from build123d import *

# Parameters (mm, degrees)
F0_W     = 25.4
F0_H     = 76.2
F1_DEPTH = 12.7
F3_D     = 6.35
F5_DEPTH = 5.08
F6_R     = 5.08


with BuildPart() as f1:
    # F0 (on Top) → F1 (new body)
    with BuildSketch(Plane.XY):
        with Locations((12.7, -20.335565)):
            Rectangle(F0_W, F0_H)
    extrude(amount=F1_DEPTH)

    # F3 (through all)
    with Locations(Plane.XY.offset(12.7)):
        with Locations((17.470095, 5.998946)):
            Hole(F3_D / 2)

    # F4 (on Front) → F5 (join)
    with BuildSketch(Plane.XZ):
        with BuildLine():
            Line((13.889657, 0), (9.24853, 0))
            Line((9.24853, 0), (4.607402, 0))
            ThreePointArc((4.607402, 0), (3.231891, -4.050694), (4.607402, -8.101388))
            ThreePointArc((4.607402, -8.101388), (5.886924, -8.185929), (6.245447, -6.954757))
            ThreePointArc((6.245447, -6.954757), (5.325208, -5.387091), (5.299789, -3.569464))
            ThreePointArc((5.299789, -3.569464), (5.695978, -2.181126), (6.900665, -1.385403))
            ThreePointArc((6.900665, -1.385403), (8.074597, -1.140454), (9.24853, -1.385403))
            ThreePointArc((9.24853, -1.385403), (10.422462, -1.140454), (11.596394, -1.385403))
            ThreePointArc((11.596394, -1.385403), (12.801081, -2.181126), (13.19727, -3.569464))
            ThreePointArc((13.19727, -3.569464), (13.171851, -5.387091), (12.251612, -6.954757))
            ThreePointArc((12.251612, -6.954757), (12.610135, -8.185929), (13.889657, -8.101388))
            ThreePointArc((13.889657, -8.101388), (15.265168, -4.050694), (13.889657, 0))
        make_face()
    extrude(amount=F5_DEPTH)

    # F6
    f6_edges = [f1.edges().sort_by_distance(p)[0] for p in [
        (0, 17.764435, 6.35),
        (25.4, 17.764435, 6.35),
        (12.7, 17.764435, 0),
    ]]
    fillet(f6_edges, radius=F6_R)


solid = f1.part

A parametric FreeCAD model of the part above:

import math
import FreeCAD as App
import Part
import Sketcher
Q = App.Units.Quantity


def edges_at(feature, points):
    """Names of the edges that pass closest to the given points."""
    edges = feature.Shape.Edges
    near = lambda p: min(range(len(edges)), key=lambda i: edges[i].distToShape(Part.Vertex(*p))[0])
    return sorted({f"Edge{near(p) + 1}" for p in points})

doc = App.newDocument("Part")
body = doc.addObject("PartDesign::Body", "Body")

# Sketch on XY plane
sketch1 = body.newObject("Sketcher::SketchObject", "Sketch")
sketch1.AttachmentSupport = (doc.getObject("XY_Plane"), [""])
sketch1.MapMode = "FlatFace"
sketch1.addGeometry([
    Part.LineSegment(App.Vector(0, 18, 0), App.Vector(0, -58, 0)),
    Part.LineSegment(App.Vector(0, -58, 0), App.Vector(25, -58, 0)),
    Part.LineSegment(App.Vector(25, -58, 0), App.Vector(25, 18, 0)),
    Part.LineSegment(App.Vector(25, 18, 0), App.Vector(0, 18, 0)),
], False)
sketch1.addConstraint([
    Sketcher.Constraint("Coincident", 0, 2, 1, 1),
    Sketcher.Constraint("Coincident", 1, 2, 2, 1),
    Sketcher.Constraint("Coincident", 2, 2, 3, 1),
    Sketcher.Constraint("Coincident", 3, 2, 0, 1),
    Sketcher.Constraint("Vertical", 0),
    Sketcher.Constraint("Horizontal", 1),
    Sketcher.Constraint("Vertical", 2),
    Sketcher.Constraint("Horizontal", 3),
    Sketcher.Constraint("PointOnObject", 0, 2, -2),
    Sketcher.Constraint("DistanceX", 1, 1, 1, 2, Q("1 in")),
    Sketcher.Constraint("DistanceY", 0, 2, 0, 1, Q("3 in")),
    Sketcher.Constraint("DistanceY", 0, 2, -1, 1, Q("58.435565 mm")),
])
pad1 = body.newObject("PartDesign::Pad", "Pad")
pad1.Profile = sketch1
pad1.Length = Q("0.5 in")

# Sketch on XY plane
sketch2 = body.newObject("Sketcher::SketchObject", "Sketch001")
sketch2.AttachmentSupport = (doc.getObject("XY_Plane"), [""])
sketch2.MapMode = "FlatFace"
sketch2.AttachmentOffset = App.Placement(App.Vector(0, 0, 0.5 * 25.4), App.Rotation())
sketch2.addGeometry(Part.Circle(App.Vector(17.5, 6, 0), App.Vector(0, 0, 1), 3.2), False)
sketch2.addConstraint([
    Sketcher.Constraint("Diameter", 0, Q("0.25 in")),
    Sketcher.Constraint("DistanceX", -1, 1, 0, 3, Q("17.470095 mm")),
    Sketcher.Constraint("DistanceY", -1, 1, 0, 3, Q("5.998946 mm")),
])
doc.recompute()
hole = body.newObject("PartDesign::Hole", "Hole")
hole.Profile = sketch2
hole.ThreadType = "None"
hole.Diameter = Q("0.25 in")
hole.DepthType = "ThroughAll"

# Sketch on XZ plane
sketch3 = body.newObject("Sketcher::SketchObject", "Sketch002")
sketch3.AttachmentSupport = (doc.getObject("XZ_Plane"), [""])
sketch3.MapMode = "FlatFace"
sketch3.addGeometry([
    Part.LineSegment(App.Vector(13.9, 0, 0), App.Vector(4.6, 0, 0)),  # 0
    Part.ArcOfCircle(Part.Circle(App.Vector(9.9, -4.1, 0), App.Vector(0, 0, 1), 6.7), math.radians(142), math.radians(218)),  # 1
    Part.ArcOfCircle(Part.Circle(App.Vector(5.3, -7.3, 0), App.Vector(0, 0, 1), 1), math.radians(-133), math.radians(23)),  # 2
    Part.ArcOfCircle(Part.Circle(App.Vector(8.8, -4.4, 0), App.Vector(0, 0, 1), 3.6), math.radians(166), math.radians(225)),  # 3
    Part.ArcOfCircle(Part.Circle(App.Vector(7.4, -3.4, 0), App.Vector(0, 0, 1), 2.1), math.radians(103), math.radians(184)),  # 4
    Part.ArcOfCircle(Part.Circle(App.Vector(8.1, -4.1, 0), App.Vector(0, 0, 1), 2.9), math.radians(66), math.radians(114)),  # 5
    Part.ArcOfCircle(Part.Circle(App.Vector(10.4, -4.1, 0), App.Vector(0, 0, 1), 2.9), math.radians(66), math.radians(114)),  # 6
    Part.ArcOfCircle(Part.Circle(App.Vector(11.1, -3.4, 0), App.Vector(0, 0, 1), 2.1), math.radians(-4), math.radians(77)),  # 7
    Part.ArcOfCircle(Part.Circle(App.Vector(9.7, -4.4, 0), App.Vector(0, 0, 1), 3.6), math.radians(-45), math.radians(14)),  # 8
    Part.ArcOfCircle(Part.Circle(App.Vector(13.2, -7.3, 0), App.Vector(0, 0, 1), 1), math.radians(157), math.radians(313)),  # 9
    Part.ArcOfCircle(Part.Circle(App.Vector(8.6, -4.1, 0), App.Vector(0, 0, 1), 6.7), math.radians(-38), math.radians(38)),  # 10
], False)
sketch3.addConstraint([
    Sketcher.Constraint("Coincident", 0, 2, 1, 1),
    Sketcher.Constraint("Coincident", 1, 2, 2, 1),
    Sketcher.Constraint("Coincident", 2, 2, 3, 2),
    Sketcher.Constraint("Coincident", 3, 1, 4, 2),
    Sketcher.Constraint("Coincident", 4, 1, 5, 2),
    Sketcher.Constraint("Coincident", 5, 1, 6, 2),
    Sketcher.Constraint("Coincident", 6, 1, 7, 2),
    Sketcher.Constraint("Coincident", 7, 1, 8, 2),
    Sketcher.Constraint("Coincident", 8, 1, 9, 1),
    Sketcher.Constraint("Coincident", 9, 2, 10, 1),
    Sketcher.Constraint("Coincident", 10, 2, 0, 1),
    Sketcher.Constraint("Horizontal", 0),
    Sketcher.Constraint("Equal", 4, 7),
    Sketcher.Constraint("Equal", 3, 8),
    Sketcher.Constraint("Equal", 2, 9),
    Sketcher.Constraint("Equal", 1, 10),
    Sketcher.Constraint("PointOnObject", 0, 2, -1),
    Sketcher.Constraint("Horizontal", 4, 3, 7, 3),
    Sketcher.Constraint("Horizontal", 3, 3, 8, 3),
    Sketcher.Constraint("Horizontal", 2, 3, 9, 3),
    Sketcher.Constraint("Horizontal", 1, 3, 10, 3),
    Sketcher.Constraint("Horizontal", 4, 1, 5, 1),
    Sketcher.Constraint("Horizontal", 5, 1, 6, 1),
    Sketcher.Constraint("Horizontal", 3, 1, 7, 1),
    Sketcher.Constraint("Horizontal", 2, 2, 8, 1),
    Sketcher.Constraint("Horizontal", 1, 2, 9, 2),
    Sketcher.Constraint("Vertical", 0, 2, 1, 2),
    Sketcher.Constraint("Vertical", 2, 3, 3, 1),
    Sketcher.Constraint("Radius", 4, Q("2.079399 mm")),
    Sketcher.Constraint("Radius", 1, Q("6.652129 mm")),
    Sketcher.Constraint("Radius", 2, Q("1.023842 mm")),
    Sketcher.Constraint("Radius", 3, Q("3.556666 mm")),
    Sketcher.Constraint("Radius", 5, Q("2.935545 mm")),
    Sketcher.Constraint("Radius", 6, Q("2.935542 mm")),
    Sketcher.Constraint("DistanceY", 5, 3, -1, 1, Q("4.075999 mm")),
    Sketcher.Constraint("DistanceY", 3, 3, 1, 3, Q("0.379501 mm")),
    Sketcher.Constraint("DistanceX", 4, 3, 5, 3, Q("0.701501 mm")),
    Sketcher.Constraint("DistanceY", 3, 3, 6, 3, Q("0.354198 mm")),
    Sketcher.Constraint("DistanceX", 6, 3, 7, 3, Q("0.7015 mm")),
    Sketcher.Constraint("DistanceX", 0, 2, 0, 1, Q("9.282255 mm")),
    Sketcher.Constraint("DistanceX", -1, 1, 1, 3, Q("9.88402 mm")),
    Sketcher.Constraint("DistanceX", -1, 1, 2, 3, Q("5.299789 mm")),
    Sketcher.Constraint("DistanceX", -1, 1, 8, 1, Q("12.251612 mm")),
])
pad2 = body.newObject("PartDesign::Pad", "Pad001")
pad2.Profile = sketch3
pad2.Length = Q("0.2 in")
doc.recompute()

fillet = body.newObject("PartDesign::Fillet", "Fillet")
fillet.Base = (pad2, edges_at(pad2, [(0, 17.764, 6.35), (25.4, 17.764, 6.35), (12.7, 17.764, 0)]))
fillet.Radius = Q("0.2 in")

doc.recompute()
